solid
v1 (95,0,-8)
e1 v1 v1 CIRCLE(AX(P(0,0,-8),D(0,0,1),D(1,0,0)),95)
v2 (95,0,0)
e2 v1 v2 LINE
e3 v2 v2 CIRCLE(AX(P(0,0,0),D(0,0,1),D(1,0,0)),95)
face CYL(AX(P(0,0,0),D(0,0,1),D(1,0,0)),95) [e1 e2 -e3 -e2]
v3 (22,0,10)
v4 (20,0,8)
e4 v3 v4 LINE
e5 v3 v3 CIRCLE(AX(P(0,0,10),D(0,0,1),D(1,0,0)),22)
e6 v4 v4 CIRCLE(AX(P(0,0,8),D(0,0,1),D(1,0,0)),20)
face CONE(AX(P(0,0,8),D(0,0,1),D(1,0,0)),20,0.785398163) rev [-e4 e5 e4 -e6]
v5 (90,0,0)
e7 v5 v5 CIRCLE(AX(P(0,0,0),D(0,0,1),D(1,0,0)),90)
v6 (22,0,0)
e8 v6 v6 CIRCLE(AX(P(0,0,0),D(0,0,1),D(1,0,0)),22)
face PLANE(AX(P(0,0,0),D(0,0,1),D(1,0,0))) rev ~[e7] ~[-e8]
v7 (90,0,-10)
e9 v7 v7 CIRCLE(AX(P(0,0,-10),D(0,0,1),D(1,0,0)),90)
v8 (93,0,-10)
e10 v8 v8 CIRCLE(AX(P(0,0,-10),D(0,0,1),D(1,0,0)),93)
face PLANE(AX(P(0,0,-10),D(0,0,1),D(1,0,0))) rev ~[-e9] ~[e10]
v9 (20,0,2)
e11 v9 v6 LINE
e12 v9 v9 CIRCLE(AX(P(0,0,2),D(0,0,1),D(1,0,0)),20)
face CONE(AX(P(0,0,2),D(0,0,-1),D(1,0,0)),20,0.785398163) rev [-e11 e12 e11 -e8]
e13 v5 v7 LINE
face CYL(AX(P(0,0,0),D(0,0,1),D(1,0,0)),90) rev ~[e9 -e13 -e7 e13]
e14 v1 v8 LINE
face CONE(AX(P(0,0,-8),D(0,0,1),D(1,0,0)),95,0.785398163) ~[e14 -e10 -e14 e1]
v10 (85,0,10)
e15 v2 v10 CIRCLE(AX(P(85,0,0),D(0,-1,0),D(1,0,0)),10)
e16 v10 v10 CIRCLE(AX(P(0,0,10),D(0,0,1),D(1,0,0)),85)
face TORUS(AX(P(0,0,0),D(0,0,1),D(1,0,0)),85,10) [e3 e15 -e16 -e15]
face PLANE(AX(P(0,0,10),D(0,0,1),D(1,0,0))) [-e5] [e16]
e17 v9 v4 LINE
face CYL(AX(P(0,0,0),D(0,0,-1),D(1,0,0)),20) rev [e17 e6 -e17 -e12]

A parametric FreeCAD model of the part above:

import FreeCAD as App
import Part
import Sketcher


def edges_at(feature, points):
    """Names of the edges that pass closest to the given points."""
    edges = feature.Shape.Edges
    near = lambda p: min(range(len(edges)), key=lambda i: edges[i].distToShape(Part.Vertex(*p))[0])
    return sorted({f"Edge{near(p) + 1}" for p in points})

doc = App.newDocument("Part")
body = doc.addObject("PartDesign::Body", "Body")

# Sketch on XY plane
sketch1 = doc.addObject("Sketcher::SketchObject", "Sketch")
body.addObject(sketch1)
sketch1.AttachmentSupport = (doc.XY_Plane, [""])
sketch1.MapMode = "FlatFace"
sketch1.addGeometry([
    Part.Circle(App.Vector(0, 0, 0), App.Vector(0, 0, 1), 95),
    Part.Circle(App.Vector(0, 0, 0), App.Vector(0, 0, 1), 90),
], False)
sketch1.addConstraint([
    Sketcher.Constraint("Coincident", 0, 3, -1, 1),
    Sketcher.Constraint("Coincident", 1, 3, -1, 1),
    Sketcher.Constraint("Diameter", 0, 190.0),
    Sketcher.Constraint("Diameter", 1, 180.0),
])
pad1 = doc.addObject("PartDesign::Pad", "Pad")
body.addObject(pad1)
pad1.Profile = sketch1
pad1.Length = 10
pad1.Reversed = True

# Sketch on XY plane
sketch2 = doc.addObject("Sketcher::SketchObject", "Sketch001")
body.addObject(sketch2)
sketch2.AttachmentSupport = (doc.XY_Plane, [""])
sketch2.MapMode = "FlatFace"
sketch2.addGeometry([
    Part.Circle(App.Vector(0, 0, 0), App.Vector(0, 0, 1), 95),
    Part.Circle(App.Vector(0, 0, 0), App.Vector(0, 0, 1), 20),
], False)
sketch2.addConstraint([
    Sketcher.Constraint("Coincident", 0, 3, -1, 1),
    Sketcher.Constraint("Coincident", 1, 3, -1, 1),
    Sketcher.Constraint("Diameter", 1, 40.0),
    Sketcher.Constraint("Diameter", 0, 190.0),
])
pad2 = doc.addObject("PartDesign::Pad", "Pad001")
body.addObject(pad2)
pad2.Profile = sketch2
pad2.Length = 10
doc.recompute()

fillet = doc.addObject("PartDesign::Fillet", "Fillet")
body.addObject(fillet)
fillet.Base = (pad2, edges_at(pad2, [(-95, 0, 10)]))
fillet.Radius = 10
doc.recompute()

chamfer = doc.addObject("PartDesign::Chamfer", "Chamfer")
body.addObject(chamfer)
chamfer.Base = (fillet, edges_at(fillet, [(-95, 0, -10)]))
chamfer.Size = 2
doc.recompute()

chamfer2 = doc.addObject("PartDesign::Chamfer", "Chamfer001")
body.addObject(chamfer2)
chamfer2.Base = (chamfer, edges_at(chamfer, [(-20, 0, 0), (-20, 0, 10)]))
chamfer2.Size = 2

doc.recompute()
